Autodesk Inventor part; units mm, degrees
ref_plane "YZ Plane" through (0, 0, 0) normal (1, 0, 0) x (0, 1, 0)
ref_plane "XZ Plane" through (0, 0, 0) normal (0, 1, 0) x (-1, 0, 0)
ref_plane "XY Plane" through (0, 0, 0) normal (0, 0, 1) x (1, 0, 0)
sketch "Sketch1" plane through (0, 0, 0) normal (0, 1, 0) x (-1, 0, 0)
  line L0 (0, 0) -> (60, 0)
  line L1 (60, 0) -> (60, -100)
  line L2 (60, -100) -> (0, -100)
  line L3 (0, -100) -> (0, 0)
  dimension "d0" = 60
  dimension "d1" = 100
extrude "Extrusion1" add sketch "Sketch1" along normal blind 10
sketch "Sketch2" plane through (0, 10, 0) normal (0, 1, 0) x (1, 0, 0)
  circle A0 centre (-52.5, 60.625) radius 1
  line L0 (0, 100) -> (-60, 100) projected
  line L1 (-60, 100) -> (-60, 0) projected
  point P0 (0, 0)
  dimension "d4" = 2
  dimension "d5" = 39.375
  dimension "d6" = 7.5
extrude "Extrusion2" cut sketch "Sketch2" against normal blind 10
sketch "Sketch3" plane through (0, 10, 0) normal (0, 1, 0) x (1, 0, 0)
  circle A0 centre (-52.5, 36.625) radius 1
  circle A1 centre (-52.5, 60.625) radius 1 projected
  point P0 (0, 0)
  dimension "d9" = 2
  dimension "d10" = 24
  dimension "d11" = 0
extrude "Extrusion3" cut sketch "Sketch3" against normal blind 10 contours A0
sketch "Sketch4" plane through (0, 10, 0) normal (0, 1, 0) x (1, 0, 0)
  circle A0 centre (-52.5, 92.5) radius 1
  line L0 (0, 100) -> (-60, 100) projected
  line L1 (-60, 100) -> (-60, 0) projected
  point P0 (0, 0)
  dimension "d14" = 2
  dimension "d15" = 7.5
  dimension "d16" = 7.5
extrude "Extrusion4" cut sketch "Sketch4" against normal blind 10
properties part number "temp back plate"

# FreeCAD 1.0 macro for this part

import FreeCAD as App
import Part
import Sketcher

V = App.Vector


def add_polygon(sketch, points):
    """Adds a closed chain of lines whose ends are joined by coincident constraints."""
    first, n = sketch.GeometryCount, len(points)
    for a, b in zip(points, points[1:] + points[:1]):
        sketch.addGeometry(Part.LineSegment(App.Vector(*a, 0), App.Vector(*b, 0)), False)
    for i in range(n):
        sketch.addConstraint(Sketcher.Constraint("Coincident", first + i, 2, first + (i + 1) % n, 1))

doc = App.newDocument("Part")
body = doc.addObject("PartDesign::Body", "Body")

# Sketch on XZ plane
sketch1 = body.newObject("Sketcher::SketchObject", "Sketch")
sketch1.AttachmentSupport = (doc.getObject("XZ_Plane"), [""])
sketch1.MapMode = "FlatFace"
add_polygon(sketch1, [(-60, 0), (0, 0), (0, -100), (-60, -100)])  # lines 0-3
sketch1.addConstraint([
    Sketcher.Constraint("Horizontal", 0),
    Sketcher.Constraint("Vertical", 1),
    Sketcher.Constraint("Horizontal", 2),
    Sketcher.Constraint("Vertical", 3),
    Sketcher.Constraint("Coincident", 0, 2, -1, 1),
    Sketcher.Constraint("DistanceX", 0, 1, 0, 2, 60.0),
    Sketcher.Constraint("DistanceY", 1, 2, 1, 1, 100.0),
])
pad1 = body.newObject("PartDesign::Pad", "Pad")
pad1.Profile = sketch1
pad1.Length = 10
pad1.Reversed = True

# Sketch on XZ plane
sketch2 = body.newObject("Sketcher::SketchObject", "Sketch001")
sketch2.AttachmentSupport = (doc.getObject("XZ_Plane"), [""])
sketch2.MapMode = "FlatFace"
sketch2.AttachmentOffset = App.Placement(V(0, 0, -10), App.Rotation())
sketch2.addGeometry(Part.Circle(V(-52.5, -60.6, 0), V(0, 0, 1), 1), False)
sketch2.addConstraint([
    Sketcher.Constraint("Diameter", 0, 2.0),
    Sketcher.Constraint("DistanceX", 0, 3, -1, 1, 52.5),
    Sketcher.Constraint("DistanceY", 0, 3, -1, 1, 60.625),
])
pocket1 = body.newObject("PartDesign::Pocket", "Pocket")
pocket1.Profile = sketch2
pocket1.Length = 10
pocket1.Reversed = True

# Sketch on XZ plane
sketch3 = body.newObject("Sketcher::SketchObject", "Sketch002")
sketch3.AttachmentSupport = (doc.getObject("XZ_Plane"), [""])
sketch3.MapMode = "FlatFace"
sketch3.AttachmentOffset = App.Placement(V(0, 0, -10), App.Rotation())
sketch3.addGeometry(Part.Circle(V(-52.5, -36.6, 0), V(0, 0, 1), 1), False)
sketch3.addConstraint([
    Sketcher.Constraint("Diameter", 0, 2.0),
    Sketcher.Constraint("DistanceX", 0, 3, -1, 1, 52.5),
    Sketcher.Constraint("DistanceY", 0, 3, -1, 1, 36.625),
])
pocket2 = body.newObject("PartDesign::Pocket", "Pocket001")
pocket2.Profile = sketch3
pocket2.Length = 10
pocket2.Reversed = True

# Sketch on XZ plane
sketch4 = body.newObject("Sketcher::SketchObject", "Sketch003")
sketch4.AttachmentSupport = (doc.getObject("XZ_Plane"), [""])
sketch4.MapMode = "FlatFace"
sketch4.AttachmentOffset = App.Placement(V(0, 0, -10), App.Rotation())
sketch4.addGeometry(Part.Circle(V(-52.5, -92.5, 0), V(0, 0, 1), 1), False)
sketch4.addConstraint([
    Sketcher.Constraint("Diameter", 0, 2.0),
    Sketcher.Constraint("DistanceX", 0, 3, -1, 1, 52.5),
    Sketcher.Constraint("DistanceY", 0, 3, -1, 1, 92.5),
])
pocket3 = body.newObject("PartDesign::Pocket", "Pocket002")
pocket3.Profile = sketch4
pocket3.Length = 10
pocket3.Reversed = True

doc.recompute()
